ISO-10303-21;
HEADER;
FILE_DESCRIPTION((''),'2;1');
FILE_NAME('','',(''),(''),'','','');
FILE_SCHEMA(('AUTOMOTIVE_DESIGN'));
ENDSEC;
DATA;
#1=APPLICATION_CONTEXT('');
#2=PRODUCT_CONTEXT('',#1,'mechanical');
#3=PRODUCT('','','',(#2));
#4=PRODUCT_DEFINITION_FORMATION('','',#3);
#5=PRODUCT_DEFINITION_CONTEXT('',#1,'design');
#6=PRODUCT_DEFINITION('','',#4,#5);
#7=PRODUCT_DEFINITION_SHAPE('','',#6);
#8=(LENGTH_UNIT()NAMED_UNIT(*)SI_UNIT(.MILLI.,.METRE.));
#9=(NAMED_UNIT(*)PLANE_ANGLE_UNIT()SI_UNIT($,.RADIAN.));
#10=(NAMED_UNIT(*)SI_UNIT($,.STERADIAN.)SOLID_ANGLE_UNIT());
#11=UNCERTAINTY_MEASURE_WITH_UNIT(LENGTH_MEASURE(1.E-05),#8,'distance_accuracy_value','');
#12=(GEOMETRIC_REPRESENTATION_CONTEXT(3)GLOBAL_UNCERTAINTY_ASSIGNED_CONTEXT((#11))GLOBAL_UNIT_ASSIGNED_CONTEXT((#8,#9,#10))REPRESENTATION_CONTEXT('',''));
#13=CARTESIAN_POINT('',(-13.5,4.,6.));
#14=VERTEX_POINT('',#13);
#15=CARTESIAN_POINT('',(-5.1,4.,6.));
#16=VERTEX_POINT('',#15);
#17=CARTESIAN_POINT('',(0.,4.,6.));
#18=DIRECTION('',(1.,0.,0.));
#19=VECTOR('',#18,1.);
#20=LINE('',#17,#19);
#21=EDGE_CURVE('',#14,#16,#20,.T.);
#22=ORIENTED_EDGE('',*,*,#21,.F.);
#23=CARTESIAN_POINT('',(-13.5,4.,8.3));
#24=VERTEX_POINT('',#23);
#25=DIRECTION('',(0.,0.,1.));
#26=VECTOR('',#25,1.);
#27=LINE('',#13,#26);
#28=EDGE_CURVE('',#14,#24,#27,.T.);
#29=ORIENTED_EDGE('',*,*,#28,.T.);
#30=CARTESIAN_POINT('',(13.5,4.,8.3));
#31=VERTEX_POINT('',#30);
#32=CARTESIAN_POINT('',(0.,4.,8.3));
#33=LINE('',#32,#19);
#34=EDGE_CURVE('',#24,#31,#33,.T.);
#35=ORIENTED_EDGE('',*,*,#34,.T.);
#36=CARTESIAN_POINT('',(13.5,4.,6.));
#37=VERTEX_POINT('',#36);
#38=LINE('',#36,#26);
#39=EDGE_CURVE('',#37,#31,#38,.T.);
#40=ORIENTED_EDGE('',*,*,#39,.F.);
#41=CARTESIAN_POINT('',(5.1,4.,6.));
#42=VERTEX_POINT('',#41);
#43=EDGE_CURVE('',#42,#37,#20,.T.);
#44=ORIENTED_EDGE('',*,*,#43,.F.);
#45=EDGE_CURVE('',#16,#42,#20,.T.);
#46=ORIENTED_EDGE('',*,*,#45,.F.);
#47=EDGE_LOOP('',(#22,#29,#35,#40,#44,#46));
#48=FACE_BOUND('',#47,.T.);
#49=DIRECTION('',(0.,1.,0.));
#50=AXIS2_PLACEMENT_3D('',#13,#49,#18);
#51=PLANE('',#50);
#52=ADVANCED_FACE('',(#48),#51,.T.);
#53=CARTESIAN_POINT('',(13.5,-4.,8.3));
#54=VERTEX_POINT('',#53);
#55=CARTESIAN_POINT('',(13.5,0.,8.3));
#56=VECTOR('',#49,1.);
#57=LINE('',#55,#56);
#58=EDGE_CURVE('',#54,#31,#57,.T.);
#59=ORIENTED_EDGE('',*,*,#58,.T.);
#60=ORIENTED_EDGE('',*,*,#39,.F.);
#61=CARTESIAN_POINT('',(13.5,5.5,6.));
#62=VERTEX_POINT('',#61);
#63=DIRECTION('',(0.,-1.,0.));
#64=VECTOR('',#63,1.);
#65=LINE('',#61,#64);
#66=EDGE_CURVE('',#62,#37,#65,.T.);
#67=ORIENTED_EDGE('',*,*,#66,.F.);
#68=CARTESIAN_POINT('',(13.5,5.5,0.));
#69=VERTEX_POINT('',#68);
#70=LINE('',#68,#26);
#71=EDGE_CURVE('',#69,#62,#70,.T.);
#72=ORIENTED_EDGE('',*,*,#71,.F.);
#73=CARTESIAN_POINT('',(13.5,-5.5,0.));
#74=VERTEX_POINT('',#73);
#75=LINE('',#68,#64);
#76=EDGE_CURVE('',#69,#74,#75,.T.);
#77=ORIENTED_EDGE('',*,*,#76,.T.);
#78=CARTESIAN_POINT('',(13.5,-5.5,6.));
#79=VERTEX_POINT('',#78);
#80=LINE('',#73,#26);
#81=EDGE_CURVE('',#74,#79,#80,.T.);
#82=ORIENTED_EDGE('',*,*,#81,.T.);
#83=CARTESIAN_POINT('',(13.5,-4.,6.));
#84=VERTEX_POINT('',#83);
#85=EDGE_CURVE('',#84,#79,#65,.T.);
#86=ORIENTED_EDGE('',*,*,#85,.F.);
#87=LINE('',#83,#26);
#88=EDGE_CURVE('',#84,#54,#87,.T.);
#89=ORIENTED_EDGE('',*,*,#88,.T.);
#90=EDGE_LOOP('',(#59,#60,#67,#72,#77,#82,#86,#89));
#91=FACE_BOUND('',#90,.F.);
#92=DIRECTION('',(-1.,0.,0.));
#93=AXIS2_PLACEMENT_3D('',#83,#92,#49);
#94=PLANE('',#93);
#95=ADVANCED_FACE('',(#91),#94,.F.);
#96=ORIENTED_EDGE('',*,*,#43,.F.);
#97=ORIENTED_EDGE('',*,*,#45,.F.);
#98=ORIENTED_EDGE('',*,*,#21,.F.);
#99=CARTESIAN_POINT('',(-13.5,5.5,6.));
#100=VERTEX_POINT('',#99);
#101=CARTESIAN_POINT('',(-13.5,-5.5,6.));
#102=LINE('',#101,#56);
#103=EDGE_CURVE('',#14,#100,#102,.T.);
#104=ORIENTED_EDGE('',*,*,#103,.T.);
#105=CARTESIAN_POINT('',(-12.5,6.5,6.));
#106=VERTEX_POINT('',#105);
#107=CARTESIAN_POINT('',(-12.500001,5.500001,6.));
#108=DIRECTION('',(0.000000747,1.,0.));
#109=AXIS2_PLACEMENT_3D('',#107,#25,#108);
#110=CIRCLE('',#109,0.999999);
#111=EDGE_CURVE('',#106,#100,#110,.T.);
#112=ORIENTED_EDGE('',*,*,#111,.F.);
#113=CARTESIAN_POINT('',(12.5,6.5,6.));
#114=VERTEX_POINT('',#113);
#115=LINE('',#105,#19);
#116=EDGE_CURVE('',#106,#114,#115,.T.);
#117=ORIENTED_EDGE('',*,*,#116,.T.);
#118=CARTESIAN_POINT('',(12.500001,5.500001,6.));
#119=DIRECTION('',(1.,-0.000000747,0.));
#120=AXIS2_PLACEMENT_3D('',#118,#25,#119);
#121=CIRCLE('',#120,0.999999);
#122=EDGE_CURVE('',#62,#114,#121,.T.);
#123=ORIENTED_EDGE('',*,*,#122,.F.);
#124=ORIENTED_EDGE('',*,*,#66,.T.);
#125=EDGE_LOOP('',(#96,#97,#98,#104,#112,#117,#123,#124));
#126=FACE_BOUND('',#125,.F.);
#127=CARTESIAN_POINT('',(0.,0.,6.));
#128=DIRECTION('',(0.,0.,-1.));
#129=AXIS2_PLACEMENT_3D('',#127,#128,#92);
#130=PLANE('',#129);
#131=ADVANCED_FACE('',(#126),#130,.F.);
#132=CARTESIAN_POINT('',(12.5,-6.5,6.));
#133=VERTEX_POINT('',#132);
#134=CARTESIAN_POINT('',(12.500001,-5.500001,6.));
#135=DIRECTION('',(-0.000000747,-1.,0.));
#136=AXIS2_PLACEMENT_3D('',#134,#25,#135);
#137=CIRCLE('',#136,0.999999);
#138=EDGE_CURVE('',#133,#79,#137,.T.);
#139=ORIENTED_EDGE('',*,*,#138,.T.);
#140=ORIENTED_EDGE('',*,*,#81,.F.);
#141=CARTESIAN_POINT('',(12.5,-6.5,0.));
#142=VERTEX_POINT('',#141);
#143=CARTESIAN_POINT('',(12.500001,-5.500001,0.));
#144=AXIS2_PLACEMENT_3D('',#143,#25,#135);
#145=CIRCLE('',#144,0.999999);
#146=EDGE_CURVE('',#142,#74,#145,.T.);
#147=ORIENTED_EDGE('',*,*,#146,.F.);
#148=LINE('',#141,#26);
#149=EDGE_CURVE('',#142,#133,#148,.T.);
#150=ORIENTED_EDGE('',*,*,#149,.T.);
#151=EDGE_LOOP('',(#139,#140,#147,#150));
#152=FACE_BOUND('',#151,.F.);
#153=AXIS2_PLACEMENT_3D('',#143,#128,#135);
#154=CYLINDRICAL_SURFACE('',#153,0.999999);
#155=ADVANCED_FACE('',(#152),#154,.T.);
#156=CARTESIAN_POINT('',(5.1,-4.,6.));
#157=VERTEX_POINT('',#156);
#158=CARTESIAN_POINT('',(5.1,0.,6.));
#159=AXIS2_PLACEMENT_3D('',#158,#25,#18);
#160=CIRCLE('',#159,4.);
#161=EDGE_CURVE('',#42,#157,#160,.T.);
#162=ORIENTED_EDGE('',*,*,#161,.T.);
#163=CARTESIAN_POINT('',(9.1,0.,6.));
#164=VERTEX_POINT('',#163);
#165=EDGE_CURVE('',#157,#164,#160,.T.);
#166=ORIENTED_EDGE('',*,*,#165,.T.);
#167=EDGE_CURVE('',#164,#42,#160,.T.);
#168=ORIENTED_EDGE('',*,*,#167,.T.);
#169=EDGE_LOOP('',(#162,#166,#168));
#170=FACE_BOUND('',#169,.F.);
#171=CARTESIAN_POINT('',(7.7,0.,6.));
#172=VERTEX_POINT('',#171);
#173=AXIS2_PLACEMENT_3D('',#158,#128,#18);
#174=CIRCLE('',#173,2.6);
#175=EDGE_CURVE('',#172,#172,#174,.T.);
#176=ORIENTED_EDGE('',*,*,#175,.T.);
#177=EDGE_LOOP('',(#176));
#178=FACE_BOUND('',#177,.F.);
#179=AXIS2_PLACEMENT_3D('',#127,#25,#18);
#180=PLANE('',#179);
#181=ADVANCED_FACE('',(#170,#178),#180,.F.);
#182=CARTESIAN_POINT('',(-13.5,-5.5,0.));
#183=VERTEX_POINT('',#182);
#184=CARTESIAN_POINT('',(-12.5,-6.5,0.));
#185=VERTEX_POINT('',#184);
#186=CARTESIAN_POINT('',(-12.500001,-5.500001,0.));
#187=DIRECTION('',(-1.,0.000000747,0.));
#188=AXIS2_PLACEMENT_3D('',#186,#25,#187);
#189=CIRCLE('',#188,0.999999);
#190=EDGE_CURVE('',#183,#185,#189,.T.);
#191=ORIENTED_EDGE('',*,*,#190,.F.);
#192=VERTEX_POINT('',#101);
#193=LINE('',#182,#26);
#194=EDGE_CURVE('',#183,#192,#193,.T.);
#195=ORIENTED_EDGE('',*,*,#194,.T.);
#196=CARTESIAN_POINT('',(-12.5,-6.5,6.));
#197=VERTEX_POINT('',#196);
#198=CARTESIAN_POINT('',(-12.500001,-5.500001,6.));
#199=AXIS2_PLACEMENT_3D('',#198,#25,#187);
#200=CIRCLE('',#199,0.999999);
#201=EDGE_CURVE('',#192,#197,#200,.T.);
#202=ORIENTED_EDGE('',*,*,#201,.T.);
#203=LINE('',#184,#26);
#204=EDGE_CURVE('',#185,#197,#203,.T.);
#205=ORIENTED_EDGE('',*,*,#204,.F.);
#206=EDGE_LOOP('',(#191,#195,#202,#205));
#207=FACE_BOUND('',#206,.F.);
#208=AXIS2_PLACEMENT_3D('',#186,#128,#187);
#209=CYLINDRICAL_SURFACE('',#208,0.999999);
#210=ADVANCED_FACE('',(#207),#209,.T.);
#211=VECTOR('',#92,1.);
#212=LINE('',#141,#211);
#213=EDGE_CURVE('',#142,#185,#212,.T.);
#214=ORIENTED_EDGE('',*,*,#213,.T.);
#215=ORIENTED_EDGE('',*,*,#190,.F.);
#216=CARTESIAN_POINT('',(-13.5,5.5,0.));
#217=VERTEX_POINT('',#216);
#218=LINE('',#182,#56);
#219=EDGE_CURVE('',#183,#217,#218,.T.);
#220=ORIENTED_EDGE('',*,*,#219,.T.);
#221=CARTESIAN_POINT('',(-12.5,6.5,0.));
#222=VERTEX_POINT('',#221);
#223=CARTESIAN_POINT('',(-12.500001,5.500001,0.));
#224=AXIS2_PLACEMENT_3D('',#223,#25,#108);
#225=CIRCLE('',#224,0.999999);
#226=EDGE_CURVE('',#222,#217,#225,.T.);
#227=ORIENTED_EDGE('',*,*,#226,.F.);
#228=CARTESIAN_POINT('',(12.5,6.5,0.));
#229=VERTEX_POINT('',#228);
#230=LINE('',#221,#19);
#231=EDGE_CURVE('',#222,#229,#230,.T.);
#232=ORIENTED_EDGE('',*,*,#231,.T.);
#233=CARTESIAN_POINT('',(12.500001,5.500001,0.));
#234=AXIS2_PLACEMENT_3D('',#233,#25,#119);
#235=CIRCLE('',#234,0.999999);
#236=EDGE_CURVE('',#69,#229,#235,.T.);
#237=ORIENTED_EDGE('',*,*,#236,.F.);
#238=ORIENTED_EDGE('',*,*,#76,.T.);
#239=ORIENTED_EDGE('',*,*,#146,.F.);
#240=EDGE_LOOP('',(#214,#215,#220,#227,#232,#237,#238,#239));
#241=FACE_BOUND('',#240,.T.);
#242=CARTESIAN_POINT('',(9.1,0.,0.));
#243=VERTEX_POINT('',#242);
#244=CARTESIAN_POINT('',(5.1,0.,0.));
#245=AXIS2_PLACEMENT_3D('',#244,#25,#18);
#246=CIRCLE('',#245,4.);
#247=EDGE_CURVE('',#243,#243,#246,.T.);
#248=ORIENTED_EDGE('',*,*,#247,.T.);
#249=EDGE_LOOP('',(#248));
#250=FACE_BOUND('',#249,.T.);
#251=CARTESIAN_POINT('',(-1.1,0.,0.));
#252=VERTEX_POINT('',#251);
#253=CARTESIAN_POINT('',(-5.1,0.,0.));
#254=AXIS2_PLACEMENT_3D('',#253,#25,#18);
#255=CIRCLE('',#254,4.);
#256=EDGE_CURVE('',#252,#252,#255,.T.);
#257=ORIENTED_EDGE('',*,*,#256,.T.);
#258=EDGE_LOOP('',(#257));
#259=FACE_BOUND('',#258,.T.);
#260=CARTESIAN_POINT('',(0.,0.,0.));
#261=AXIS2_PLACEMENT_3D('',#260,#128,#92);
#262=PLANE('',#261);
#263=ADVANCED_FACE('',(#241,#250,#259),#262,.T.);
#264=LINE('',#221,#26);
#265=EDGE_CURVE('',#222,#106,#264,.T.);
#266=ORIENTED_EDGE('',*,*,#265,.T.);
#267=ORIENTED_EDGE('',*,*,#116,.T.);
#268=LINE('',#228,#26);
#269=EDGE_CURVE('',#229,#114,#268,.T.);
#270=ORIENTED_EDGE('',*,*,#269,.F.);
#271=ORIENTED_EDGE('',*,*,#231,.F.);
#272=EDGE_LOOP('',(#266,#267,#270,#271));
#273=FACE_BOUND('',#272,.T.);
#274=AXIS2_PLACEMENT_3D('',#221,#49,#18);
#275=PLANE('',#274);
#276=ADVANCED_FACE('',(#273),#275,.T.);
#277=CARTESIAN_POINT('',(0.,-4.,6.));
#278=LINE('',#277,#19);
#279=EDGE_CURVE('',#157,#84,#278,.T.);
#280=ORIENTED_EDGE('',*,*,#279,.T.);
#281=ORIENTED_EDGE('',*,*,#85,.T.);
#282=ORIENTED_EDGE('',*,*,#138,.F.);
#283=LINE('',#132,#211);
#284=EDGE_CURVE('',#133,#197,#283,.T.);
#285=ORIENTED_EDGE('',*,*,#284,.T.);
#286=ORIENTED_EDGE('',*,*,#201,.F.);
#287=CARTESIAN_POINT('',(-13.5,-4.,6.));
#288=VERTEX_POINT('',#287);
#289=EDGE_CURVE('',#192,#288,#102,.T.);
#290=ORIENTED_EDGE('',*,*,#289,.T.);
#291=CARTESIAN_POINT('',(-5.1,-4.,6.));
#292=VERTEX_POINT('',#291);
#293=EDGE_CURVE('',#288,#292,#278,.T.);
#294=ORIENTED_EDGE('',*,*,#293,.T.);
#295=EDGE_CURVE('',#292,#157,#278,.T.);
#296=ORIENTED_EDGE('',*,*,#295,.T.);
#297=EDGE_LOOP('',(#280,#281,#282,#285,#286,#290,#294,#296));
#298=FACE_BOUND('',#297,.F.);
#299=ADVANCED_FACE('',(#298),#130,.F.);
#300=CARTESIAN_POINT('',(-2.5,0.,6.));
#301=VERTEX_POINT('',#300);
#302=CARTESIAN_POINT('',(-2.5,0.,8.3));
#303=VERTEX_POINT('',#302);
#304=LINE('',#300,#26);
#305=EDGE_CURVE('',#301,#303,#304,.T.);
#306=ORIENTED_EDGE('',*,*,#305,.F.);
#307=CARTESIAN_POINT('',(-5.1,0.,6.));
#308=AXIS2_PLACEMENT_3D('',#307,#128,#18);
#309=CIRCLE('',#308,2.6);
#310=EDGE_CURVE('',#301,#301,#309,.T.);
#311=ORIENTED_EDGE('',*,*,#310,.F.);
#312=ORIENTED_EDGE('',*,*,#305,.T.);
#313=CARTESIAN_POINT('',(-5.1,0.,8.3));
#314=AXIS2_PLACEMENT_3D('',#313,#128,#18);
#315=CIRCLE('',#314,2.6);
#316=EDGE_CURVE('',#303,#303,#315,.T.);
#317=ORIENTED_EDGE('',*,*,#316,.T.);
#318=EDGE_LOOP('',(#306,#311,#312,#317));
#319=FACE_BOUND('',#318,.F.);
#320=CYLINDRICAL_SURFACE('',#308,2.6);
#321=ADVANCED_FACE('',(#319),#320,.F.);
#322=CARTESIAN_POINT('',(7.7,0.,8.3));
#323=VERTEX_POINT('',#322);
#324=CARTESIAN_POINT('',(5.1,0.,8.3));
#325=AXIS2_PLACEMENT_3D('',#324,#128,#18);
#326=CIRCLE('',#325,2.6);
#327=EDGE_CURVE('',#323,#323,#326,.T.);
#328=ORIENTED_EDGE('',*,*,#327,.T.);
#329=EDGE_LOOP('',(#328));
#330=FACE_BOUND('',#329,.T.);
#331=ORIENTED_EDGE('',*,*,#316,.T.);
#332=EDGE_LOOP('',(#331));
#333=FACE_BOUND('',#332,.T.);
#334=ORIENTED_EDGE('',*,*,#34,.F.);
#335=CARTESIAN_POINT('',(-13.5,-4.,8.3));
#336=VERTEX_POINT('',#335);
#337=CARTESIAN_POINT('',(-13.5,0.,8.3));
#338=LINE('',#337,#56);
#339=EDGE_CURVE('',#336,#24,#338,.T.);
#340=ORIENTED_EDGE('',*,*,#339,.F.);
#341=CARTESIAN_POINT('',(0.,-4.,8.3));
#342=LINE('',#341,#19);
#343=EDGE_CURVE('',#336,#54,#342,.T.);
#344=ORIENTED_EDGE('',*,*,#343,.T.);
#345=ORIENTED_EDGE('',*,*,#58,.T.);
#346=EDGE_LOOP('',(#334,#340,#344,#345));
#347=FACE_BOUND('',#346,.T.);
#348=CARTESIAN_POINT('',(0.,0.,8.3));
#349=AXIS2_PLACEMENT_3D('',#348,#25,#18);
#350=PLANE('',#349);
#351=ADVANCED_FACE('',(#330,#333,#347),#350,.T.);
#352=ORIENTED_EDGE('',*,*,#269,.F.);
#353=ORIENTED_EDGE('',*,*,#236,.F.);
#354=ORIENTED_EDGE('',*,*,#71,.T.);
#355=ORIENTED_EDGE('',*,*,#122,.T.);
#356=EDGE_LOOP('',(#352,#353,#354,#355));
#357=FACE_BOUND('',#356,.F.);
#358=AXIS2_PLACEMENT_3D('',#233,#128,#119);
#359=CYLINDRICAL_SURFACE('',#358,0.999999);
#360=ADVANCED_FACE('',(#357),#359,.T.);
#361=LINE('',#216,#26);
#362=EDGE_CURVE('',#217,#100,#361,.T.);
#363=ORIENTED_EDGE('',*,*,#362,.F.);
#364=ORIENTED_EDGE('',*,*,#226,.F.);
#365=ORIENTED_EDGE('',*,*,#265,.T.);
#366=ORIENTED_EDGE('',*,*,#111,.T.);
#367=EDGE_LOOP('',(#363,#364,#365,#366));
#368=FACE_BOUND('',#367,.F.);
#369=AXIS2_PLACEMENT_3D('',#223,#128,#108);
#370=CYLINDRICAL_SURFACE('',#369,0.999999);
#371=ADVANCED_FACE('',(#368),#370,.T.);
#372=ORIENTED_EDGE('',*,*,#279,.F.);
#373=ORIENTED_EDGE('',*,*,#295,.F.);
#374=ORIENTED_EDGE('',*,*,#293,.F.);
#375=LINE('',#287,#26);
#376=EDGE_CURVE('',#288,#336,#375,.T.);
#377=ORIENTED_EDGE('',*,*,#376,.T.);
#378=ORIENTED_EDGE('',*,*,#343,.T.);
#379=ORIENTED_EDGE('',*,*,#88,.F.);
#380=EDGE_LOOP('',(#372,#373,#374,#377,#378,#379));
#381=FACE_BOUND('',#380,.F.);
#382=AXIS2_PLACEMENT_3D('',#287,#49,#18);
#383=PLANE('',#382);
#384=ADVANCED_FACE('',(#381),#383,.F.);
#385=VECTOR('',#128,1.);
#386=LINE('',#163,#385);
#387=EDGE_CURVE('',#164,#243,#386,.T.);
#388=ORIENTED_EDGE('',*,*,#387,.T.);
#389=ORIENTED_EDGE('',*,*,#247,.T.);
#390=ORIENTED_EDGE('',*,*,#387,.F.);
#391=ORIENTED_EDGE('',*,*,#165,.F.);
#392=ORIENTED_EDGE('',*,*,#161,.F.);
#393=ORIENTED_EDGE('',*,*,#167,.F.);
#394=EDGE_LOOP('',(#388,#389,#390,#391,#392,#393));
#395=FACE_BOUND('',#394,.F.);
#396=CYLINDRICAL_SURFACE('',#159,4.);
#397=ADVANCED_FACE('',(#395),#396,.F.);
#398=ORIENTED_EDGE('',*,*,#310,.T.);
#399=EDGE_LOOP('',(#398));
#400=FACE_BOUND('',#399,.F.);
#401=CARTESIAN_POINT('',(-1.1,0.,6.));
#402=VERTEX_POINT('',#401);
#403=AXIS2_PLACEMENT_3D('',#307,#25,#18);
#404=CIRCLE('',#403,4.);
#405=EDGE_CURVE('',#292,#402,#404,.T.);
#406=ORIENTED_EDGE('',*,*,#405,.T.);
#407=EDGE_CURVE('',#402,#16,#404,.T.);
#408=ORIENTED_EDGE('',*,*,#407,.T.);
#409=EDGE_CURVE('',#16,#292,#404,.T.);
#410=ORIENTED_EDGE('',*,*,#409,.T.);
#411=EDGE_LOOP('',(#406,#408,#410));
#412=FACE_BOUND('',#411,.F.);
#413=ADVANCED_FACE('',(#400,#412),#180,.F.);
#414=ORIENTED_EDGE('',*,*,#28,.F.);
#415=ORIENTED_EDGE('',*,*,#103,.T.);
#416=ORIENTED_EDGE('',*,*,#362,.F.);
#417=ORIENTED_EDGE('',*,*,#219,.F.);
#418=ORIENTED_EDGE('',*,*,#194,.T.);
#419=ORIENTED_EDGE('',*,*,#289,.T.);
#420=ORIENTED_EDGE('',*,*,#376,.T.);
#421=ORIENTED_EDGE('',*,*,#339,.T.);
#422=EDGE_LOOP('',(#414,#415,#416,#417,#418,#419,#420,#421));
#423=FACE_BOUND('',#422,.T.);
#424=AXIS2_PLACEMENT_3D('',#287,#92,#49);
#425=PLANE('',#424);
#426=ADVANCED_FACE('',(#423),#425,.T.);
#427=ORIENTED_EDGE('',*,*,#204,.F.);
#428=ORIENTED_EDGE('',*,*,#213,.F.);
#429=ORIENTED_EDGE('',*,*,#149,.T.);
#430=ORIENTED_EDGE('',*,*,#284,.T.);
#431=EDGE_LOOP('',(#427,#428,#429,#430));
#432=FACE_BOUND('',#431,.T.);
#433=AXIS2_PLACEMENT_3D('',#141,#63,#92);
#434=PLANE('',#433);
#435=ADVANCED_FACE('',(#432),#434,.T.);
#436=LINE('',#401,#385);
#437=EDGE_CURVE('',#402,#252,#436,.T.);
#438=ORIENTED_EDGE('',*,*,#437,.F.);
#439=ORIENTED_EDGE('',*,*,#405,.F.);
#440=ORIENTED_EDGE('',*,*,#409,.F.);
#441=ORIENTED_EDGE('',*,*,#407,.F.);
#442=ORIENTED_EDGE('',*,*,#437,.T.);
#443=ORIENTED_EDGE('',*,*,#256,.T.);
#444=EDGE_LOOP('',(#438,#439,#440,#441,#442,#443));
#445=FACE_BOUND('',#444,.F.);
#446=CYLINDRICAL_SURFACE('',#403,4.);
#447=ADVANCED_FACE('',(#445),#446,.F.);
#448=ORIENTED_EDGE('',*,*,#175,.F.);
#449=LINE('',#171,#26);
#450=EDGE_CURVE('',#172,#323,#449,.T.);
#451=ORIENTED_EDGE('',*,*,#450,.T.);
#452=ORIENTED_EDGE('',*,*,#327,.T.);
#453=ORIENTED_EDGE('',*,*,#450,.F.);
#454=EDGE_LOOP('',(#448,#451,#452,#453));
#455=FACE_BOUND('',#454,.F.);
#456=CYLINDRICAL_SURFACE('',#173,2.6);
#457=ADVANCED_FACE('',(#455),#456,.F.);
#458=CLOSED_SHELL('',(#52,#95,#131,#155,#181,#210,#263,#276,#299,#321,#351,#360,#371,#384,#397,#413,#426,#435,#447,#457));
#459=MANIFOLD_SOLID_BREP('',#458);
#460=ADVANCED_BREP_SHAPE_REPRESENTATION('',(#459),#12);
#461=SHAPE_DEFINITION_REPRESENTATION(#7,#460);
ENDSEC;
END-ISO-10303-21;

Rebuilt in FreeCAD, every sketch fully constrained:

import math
import FreeCAD as App
import Part
import Sketcher
from FreeCAD import Vector


def add_polygon(sketch, points):
    """Adds a closed chain of lines whose ends are joined by coincident constraints."""
    first, n = sketch.GeometryCount, len(points)
    for a, b in zip(points, points[1:] + points[:1]):
        sketch.addGeometry(Part.LineSegment(App.Vector(*a, 0), App.Vector(*b, 0)), False)
    for i in range(n):
        sketch.addConstraint(Sketcher.Constraint("Coincident", first + i, 2, first + (i + 1) % n, 1))

doc = App.newDocument("Part")
body = doc.addObject("PartDesign::Body", "Body")

sketch1 = body.newObject("Sketcher::SketchObject", "Sketch")
sketch1.AttachmentSupport = (doc.getObject("XY_Plane"), [""])
sketch1.MapMode = "FlatFace"
sketch1.addGeometry([
    Part.LineSegment(Vector(12.5, 6.5, 0), Vector(-12.5, 6.5, 0)),
    Part.ArcOfCircle(Part.Circle(Vector(-12.500001, 5.500001, 0), Vector(0, 0, 1), 0.999999), math.radians(89.999957), math.radians(180.000043)),
    Part.LineSegment(Vector(-13.5, 5.5, 0), Vector(-13.5, -5.5, 0)),
    Part.ArcOfCircle(Part.Circle(Vector(-12.500001, -5.500001, 0), Vector(0, 0, 1), 0.999999), math.radians(179.999957), math.radians(270.000043)),
    Part.LineSegment(Vector(-12.5, -6.5, 0), Vector(12.5, -6.5, 0)),
    Part.ArcOfCircle(Part.Circle(Vector(12.500001, -5.500001, 0), Vector(0, 0, 1), 0.999999), math.radians(-90.000043), math.radians(0.000043)),
    Part.LineSegment(Vector(13.5, -5.5, 0), Vector(13.5, 5.5, 0)),
    Part.ArcOfCircle(Part.Circle(Vector(12.500001, 5.500001, 0), Vector(0, 0, 1), 0.999999), math.radians(-0.000043), math.radians(90.000043)),
], False)
sketch1.addConstraint([
    Sketcher.Constraint("Tangent", 0, 2, 1, 1),
    Sketcher.Constraint("Tangent", 1, 2, 2, 1),
    Sketcher.Constraint("Tangent", 2, 2, 3, 1),
    Sketcher.Constraint("Tangent", 3, 2, 4, 1),
    Sketcher.Constraint("Tangent", 4, 2, 5, 1),
    Sketcher.Constraint("Tangent", 5, 2, 6, 1),
    Sketcher.Constraint("Tangent", 6, 2, 7, 1),
    Sketcher.Constraint("Tangent", 7, 2, 0, 1),
    Sketcher.Constraint("Horizontal", 0),
    Sketcher.Constraint("Vertical", 2),
    Sketcher.Constraint("Horizontal", 4),
    Sketcher.Constraint("Vertical", 6),
    Sketcher.Constraint("Equal", 1, 3),
    Sketcher.Constraint("Equal", 3, 5),
    Sketcher.Constraint("Equal", 5, 7),
    Sketcher.Constraint("Symmetric", 1, 3, 5, 3, -1, 1),
    Sketcher.Constraint("Radius", 1, 0.999999),
    Sketcher.Constraint("DistanceX", 0, 2, 0, 1, 25.0),
    Sketcher.Constraint("DistanceY", 2, 2, 2, 1, 11.0),
])
pad1 = body.newObject("PartDesign::Pad", "Pad")
pad1.Profile = sketch1
pad1.Length = 6

sketch2 = body.newObject("Sketcher::SketchObject", "Sketch001")
sketch2.AttachmentSupport = (doc.getObject("XY_Plane"), [""])
sketch2.MapMode = "FlatFace"
sketch2.AttachmentOffset = App.Placement(Vector(0, 0, 6), App.Rotation())
sketch2.addGeometry([
    Part.Circle(Vector(-5.1, 0, 0), Vector(0, 0, 1), 4),
    Part.Circle(Vector(5.1, 0, 0), Vector(0, 0, 1), 4),
], False)
sketch2.addConstraint([
    Sketcher.Constraint("Equal", 0, 1),
    Sketcher.Constraint("Symmetric", 0, 3, 1, 3, -1, 1),
    Sketcher.Constraint("PointOnObject", 0, 3, -1),
    Sketcher.Constraint("Diameter", 0, 8.0),
    Sketcher.Constraint("DistanceX", 0, 3, -1, 1, 5.1),
])
pocket1 = body.newObject("PartDesign::Pocket", "Pocket")
pocket1.Profile = sketch2
pocket1.Type = "ThroughAll"

sketch3 = body.newObject("Sketcher::SketchObject", "Sketch002")
sketch3.AttachmentSupport = (doc.getObject("XY_Plane"), [""])
sketch3.MapMode = "FlatFace"
sketch3.AttachmentOffset = App.Placement(Vector(0, 0, 6), App.Rotation())
add_polygon(sketch3, [(-13.5, 4), (-13.5, -4), (13.5, -4), (13.5, 4)])
sketch3.addConstraint([
    Sketcher.Constraint("Vertical", 0),
    Sketcher.Constraint("Horizontal", 1),
    Sketcher.Constraint("Vertical", 2),
    Sketcher.Constraint("Horizontal", 3),
    Sketcher.Constraint("Symmetric", 0, 2, 2, 2, -1, 1),
    Sketcher.Constraint("DistanceX", 1, 1, 1, 2, 27.0),
    Sketcher.Constraint("DistanceY", 0, 2, 0, 1, 8.0),
])
pad2 = body.newObject("PartDesign::Pad", "Pad001")
pad2.Profile = sketch3
pad2.Length = 2.3

sketch4 = body.newObject("Sketcher::SketchObject", "Sketch003")
sketch4.AttachmentSupport = (doc.getObject("XY_Plane"), [""])
sketch4.MapMode = "FlatFace"
sketch4.AttachmentOffset = App.Placement(Vector(0, 0, 6), App.Rotation())
sketch4.addGeometry([
    Part.Circle(Vector(-5.1, 0, 0), Vector(0, 0, 1), 2.6),
    Part.Circle(Vector(5.1, 0, 0), Vector(0, 0, 1), 2.6),
], False)
sketch4.addConstraint([
    Sketcher.Constraint("Equal", 0, 1),
    Sketcher.Constraint("Symmetric", 0, 3, 1, 3, -1, 1),
    Sketcher.Constraint("PointOnObject", 0, 3, -1),
    Sketcher.Constraint("Diameter", 0, 5.2),
    Sketcher.Constraint("DistanceX", 0, 3, -1, 1, 5.1),
])
pocket2 = body.newObject("PartDesign::Pocket", "Pocket001")
pocket2.Profile = sketch4
pocket2.Type = "ThroughAll"
pocket2.Reversed = True

doc.recompute()
